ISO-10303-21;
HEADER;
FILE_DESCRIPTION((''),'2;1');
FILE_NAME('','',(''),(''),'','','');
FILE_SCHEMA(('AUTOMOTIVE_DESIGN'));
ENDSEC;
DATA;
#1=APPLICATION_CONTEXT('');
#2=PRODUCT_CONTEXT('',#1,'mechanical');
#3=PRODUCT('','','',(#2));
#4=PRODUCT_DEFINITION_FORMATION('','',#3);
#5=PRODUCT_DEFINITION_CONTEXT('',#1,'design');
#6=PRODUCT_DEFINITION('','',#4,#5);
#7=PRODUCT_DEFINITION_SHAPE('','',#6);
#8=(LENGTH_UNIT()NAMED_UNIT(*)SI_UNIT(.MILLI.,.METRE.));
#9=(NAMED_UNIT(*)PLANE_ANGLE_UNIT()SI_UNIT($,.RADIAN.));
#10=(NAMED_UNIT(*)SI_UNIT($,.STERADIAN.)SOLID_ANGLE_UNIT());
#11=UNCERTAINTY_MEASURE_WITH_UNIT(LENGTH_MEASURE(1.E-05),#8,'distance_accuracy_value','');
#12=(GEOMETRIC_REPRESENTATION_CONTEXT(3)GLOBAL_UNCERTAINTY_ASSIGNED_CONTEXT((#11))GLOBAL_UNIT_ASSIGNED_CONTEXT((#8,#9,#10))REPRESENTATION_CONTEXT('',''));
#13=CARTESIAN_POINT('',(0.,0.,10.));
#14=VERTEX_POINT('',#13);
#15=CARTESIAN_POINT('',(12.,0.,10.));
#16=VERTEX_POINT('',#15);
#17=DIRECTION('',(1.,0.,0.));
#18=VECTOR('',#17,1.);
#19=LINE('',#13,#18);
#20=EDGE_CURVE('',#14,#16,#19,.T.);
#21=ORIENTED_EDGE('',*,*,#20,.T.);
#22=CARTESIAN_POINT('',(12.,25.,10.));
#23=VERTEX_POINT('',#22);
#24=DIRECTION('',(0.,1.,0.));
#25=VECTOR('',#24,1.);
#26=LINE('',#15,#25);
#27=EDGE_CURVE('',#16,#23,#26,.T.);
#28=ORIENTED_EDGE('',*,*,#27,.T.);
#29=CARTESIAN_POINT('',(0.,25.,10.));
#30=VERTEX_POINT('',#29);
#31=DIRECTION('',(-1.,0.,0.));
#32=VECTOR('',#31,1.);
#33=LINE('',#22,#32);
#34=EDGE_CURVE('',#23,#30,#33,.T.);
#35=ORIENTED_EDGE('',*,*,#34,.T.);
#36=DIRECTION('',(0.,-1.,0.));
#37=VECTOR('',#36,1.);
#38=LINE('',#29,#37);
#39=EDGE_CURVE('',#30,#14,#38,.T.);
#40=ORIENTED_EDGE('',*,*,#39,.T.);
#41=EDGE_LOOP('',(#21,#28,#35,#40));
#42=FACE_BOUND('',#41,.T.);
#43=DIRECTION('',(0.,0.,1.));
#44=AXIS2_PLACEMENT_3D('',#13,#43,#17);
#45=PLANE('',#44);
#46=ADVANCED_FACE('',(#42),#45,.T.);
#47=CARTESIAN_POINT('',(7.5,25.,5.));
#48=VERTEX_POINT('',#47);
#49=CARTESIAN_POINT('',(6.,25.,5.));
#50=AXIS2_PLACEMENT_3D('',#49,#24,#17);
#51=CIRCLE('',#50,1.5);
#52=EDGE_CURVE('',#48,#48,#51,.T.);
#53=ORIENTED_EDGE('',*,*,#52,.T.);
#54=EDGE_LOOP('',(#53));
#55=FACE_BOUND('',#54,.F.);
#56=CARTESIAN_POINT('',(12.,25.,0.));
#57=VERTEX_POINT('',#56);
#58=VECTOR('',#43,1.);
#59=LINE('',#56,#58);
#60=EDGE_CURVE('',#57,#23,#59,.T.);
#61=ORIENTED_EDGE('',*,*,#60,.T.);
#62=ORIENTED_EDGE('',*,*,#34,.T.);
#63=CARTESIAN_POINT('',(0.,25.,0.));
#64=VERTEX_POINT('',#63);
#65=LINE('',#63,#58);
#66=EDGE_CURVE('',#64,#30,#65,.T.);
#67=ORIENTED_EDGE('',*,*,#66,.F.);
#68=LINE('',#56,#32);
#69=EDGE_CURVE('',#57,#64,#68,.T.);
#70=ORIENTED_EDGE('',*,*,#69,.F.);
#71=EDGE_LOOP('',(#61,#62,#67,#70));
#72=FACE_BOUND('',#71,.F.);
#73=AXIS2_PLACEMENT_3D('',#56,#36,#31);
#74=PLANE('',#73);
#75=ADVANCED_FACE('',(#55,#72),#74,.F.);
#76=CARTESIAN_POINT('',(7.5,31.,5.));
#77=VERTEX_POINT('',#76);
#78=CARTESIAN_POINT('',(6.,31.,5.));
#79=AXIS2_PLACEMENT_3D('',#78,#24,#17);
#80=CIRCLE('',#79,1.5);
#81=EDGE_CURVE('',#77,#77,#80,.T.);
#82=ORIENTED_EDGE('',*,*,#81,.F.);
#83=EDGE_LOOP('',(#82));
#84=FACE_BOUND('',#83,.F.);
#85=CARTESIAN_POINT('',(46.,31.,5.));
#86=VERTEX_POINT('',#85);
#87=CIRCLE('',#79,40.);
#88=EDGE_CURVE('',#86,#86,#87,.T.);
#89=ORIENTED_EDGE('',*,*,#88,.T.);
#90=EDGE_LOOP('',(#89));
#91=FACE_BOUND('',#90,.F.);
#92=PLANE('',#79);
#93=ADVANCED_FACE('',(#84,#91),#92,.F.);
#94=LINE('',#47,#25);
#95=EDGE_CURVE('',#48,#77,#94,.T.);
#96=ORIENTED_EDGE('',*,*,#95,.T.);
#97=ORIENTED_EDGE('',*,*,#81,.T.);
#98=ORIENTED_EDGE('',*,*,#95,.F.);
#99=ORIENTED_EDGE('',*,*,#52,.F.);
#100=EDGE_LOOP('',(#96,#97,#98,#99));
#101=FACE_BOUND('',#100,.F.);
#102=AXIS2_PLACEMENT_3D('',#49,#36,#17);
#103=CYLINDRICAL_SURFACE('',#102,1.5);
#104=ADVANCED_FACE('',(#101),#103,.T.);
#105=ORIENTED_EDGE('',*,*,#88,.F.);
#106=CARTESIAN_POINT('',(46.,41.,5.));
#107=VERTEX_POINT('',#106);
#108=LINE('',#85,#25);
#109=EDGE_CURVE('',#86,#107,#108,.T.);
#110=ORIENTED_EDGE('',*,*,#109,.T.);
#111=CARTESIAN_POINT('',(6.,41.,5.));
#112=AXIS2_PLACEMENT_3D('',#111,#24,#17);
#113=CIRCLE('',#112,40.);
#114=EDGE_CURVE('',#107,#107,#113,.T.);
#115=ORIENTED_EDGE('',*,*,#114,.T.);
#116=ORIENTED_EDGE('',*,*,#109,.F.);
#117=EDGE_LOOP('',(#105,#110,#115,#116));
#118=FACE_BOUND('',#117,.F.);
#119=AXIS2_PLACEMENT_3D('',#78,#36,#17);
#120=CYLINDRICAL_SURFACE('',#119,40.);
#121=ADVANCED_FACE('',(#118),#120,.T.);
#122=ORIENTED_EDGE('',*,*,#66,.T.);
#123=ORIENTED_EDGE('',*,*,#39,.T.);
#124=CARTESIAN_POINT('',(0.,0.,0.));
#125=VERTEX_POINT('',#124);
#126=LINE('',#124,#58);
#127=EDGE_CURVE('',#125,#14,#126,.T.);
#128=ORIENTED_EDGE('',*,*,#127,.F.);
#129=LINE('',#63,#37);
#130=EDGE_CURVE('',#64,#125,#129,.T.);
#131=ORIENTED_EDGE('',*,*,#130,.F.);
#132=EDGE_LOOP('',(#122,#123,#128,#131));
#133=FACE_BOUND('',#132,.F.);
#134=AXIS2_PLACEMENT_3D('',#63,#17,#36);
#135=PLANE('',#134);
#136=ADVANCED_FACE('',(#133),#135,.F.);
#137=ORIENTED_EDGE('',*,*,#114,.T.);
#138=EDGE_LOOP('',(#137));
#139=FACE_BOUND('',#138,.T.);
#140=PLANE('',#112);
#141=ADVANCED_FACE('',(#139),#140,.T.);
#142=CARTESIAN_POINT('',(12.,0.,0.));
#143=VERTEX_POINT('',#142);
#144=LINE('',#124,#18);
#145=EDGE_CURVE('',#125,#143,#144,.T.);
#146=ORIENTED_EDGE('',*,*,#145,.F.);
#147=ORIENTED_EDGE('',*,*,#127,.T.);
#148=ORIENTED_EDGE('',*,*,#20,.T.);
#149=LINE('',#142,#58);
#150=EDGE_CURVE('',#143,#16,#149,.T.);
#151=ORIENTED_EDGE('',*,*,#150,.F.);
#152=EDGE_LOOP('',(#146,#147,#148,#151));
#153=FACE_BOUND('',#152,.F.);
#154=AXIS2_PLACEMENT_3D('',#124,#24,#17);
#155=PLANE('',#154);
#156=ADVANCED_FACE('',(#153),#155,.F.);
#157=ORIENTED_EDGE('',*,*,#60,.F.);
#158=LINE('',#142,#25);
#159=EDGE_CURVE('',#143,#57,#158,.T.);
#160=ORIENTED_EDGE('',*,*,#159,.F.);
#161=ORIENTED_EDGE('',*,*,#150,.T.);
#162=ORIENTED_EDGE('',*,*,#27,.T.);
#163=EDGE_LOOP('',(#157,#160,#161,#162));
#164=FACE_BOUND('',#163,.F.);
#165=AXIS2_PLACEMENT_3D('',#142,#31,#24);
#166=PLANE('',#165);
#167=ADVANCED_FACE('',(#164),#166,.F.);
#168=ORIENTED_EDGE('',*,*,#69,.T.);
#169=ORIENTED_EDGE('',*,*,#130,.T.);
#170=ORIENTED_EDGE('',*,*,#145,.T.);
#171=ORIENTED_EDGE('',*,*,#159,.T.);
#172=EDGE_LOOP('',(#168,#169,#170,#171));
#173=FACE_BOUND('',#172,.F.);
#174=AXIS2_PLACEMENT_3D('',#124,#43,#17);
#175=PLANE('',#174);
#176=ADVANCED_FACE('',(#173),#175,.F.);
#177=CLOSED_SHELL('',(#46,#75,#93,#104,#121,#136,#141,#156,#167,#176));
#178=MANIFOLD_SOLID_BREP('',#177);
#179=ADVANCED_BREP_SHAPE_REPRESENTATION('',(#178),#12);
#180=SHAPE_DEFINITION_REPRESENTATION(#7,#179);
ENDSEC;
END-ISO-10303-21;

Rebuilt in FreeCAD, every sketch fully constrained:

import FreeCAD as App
import Part
import Sketcher
from FreeCAD import Vector

doc = App.newDocument("Part")
params = doc.addObject("Spreadsheet::Sheet", "Params")
for row, (alias, value) in enumerate([
    ("sketch1_width", "12 mm"),
    ("sketch1_height", "25 mm"),
    ("pad1_length", "10 mm"),
    ("sketch2_diameter", "3 mm"),
    ("pad2_length", "6 mm"),
    ("sketch3_diameter", "80 mm"),
    ("pad3_length", "10 mm"),
], start=1):
    params.set(f"A{row}", alias)
    params.set(f"B{row}", "=" + value)
    params.setAlias(f"B{row}", alias)

body = doc.addObject("PartDesign::Body", "Body")

sketch1 = doc.addObject("Sketcher::SketchObject", "Sketch")
body.addObject(sketch1)
sketch1.AttachmentSupport = (doc.XY_Plane, [""])
sketch1.MapMode = "FlatFace"
sketch1.addGeometry(Part.LineSegment(Vector(0, 25, 0), Vector(0, 0, 0)), False)
sketch1.addGeometry(Part.LineSegment(Vector(0, 0, 0), Vector(12, 0, 0)), False)
sketch1.addGeometry(Part.LineSegment(Vector(12, 0, 0), Vector(12, 25, 0)), False)
sketch1.addGeometry(Part.LineSegment(Vector(12, 25, 0), Vector(0, 25, 0)), False)
sketch1.addConstraint(Sketcher.Constraint("Coincident", 0, 2, 1, 1))
sketch1.addConstraint(Sketcher.Constraint("Coincident", 1, 2, 2, 1))
sketch1.addConstraint(Sketcher.Constraint("Coincident", 2, 2, 3, 1))
sketch1.addConstraint(Sketcher.Constraint("Coincident", 3, 2, 0, 1))
sketch1.addConstraint(Sketcher.Constraint("Vertical", 0))
sketch1.addConstraint(Sketcher.Constraint("Horizontal", 1))
sketch1.addConstraint(Sketcher.Constraint("Vertical", 2))
sketch1.addConstraint(Sketcher.Constraint("Horizontal", 3))
sketch1.addConstraint(Sketcher.Constraint("Coincident", 0, 2, -1, 1))
sketch1.addConstraint(Sketcher.Constraint("DistanceX", 1, 1, 1, 2, 12.0))
sketch1.addConstraint(Sketcher.Constraint("DistanceY", 0, 2, 0, 1, 25.0))
sketch1.setExpression("Constraints[9]", "Params.sketch1_width")
sketch1.setExpression("Constraints[10]", "Params.sketch1_height")
pad1 = doc.addObject("PartDesign::Pad", "Pad")
body.addObject(pad1)
pad1.Profile = sketch1
pad1.setExpression("Length", "Params.pad1_length")

sketch2 = doc.addObject("Sketcher::SketchObject", "Sketch001")
body.addObject(sketch2)
sketch2.AttachmentSupport = (doc.XZ_Plane, [""])
sketch2.MapMode = "FlatFace"
sketch2.AttachmentOffset = App.Placement(Vector(0, 0, -25), App.Rotation())
sketch2.addGeometry(Part.Circle(Vector(6, 5, 0), Vector(0, 0, 1), 1.5), False)
sketch2.addConstraint(Sketcher.Constraint("Diameter", 0, 3.0))
sketch2.addConstraint(Sketcher.Constraint("DistanceX", -1, 1, 0, 3, 6.0))
sketch2.addConstraint(Sketcher.Constraint("DistanceY", -1, 1, 0, 3, 5.0))
sketch2.setExpression("Constraints[0]", "Params.sketch2_diameter")
pad2 = doc.addObject("PartDesign::Pad", "Pad001")
body.addObject(pad2)
pad2.Profile = sketch2
pad2.setExpression("Length", "Params.pad2_length")
pad2.Reversed = True

sketch3 = doc.addObject("Sketcher::SketchObject", "Sketch002")
body.addObject(sketch3)
sketch3.AttachmentSupport = (doc.XZ_Plane, [""])
sketch3.MapMode = "FlatFace"
sketch3.AttachmentOffset = App.Placement(Vector(0, 0, -31), App.Rotation())
sketch3.addGeometry(Part.Circle(Vector(6, 5, 0), Vector(0, 0, 1), 40), False)
sketch3.addConstraint(Sketcher.Constraint("Diameter", 0, 80.0))
sketch3.addConstraint(Sketcher.Constraint("DistanceX", -1, 1, 0, 3, 6.0))
sketch3.addConstraint(Sketcher.Constraint("DistanceY", -1, 1, 0, 3, 5.0))
sketch3.setExpression("Constraints[0]", "Params.sketch3_diameter")
pad3 = doc.addObject("PartDesign::Pad", "Pad002")
body.addObject(pad3)
pad3.Profile = sketch3
pad3.setExpression("Length", "Params.pad3_length")
pad3.Reversed = True

doc.recompute()
